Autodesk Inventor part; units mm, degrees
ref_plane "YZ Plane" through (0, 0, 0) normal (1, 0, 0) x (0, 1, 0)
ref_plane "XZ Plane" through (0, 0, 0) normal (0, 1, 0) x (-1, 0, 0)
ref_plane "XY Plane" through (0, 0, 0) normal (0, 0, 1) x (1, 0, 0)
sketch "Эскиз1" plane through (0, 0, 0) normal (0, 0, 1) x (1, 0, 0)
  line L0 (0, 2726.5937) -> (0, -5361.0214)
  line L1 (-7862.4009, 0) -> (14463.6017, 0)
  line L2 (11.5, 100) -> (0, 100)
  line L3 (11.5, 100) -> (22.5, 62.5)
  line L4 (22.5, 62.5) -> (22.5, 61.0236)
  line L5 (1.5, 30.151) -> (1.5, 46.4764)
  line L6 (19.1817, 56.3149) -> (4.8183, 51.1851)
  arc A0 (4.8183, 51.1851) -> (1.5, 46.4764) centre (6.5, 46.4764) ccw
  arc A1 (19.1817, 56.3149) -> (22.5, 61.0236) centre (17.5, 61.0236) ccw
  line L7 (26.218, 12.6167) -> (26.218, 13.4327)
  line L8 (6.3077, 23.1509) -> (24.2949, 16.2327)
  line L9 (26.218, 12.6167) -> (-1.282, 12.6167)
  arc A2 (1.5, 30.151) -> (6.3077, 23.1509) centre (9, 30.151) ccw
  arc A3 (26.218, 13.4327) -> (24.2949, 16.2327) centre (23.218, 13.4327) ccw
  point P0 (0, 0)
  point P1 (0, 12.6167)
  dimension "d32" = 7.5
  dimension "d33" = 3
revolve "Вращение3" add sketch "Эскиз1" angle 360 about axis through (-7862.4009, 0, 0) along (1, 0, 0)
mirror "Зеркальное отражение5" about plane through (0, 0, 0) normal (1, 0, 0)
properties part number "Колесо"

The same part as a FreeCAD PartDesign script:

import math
import FreeCAD as App
import Part
import Sketcher

V = App.Vector

doc = App.newDocument("Part")
body = doc.addObject("PartDesign::Body", "Body")

sketch1 = doc.addObject("Sketcher::SketchObject", "Sketch")
body.addObject(sketch1)
sketch1.AttachmentSupport = (doc.XY_Plane, [""])
sketch1.MapMode = "FlatFace"
sketch1.addGeometry([
    Part.LineSegment(V(11.5, 100, 0), V(0, 100, 0)),
    Part.LineSegment(V(0, 100, 0), V(0, 12.6167, 0)),
    Part.LineSegment(V(0, 12.6167, 0), V(26.218, 12.6167, 0)),
    Part.LineSegment(V(26.218, 12.6167, 0), V(26.218, 13.4327, 0)),
    Part.ArcOfCircle(Part.Circle(V(23.218, 13.4327, 0), V(0, 0, 1), 3), math.radians(0), math.radians(68.9629)),
    Part.LineSegment(V(24.2949, 16.2327, 0), V(6.3077, 23.1509, 0)),
    Part.ArcOfCircle(Part.Circle(V(9, 30.151, 0), V(0, 0, 1), 7.5), math.radians(180), math.radians(248.962818)),
    Part.LineSegment(V(1.5, 30.151, 0), V(1.5, 46.4764, 0)),
    Part.ArcOfCircle(Part.Circle(V(6.5, 46.4764, 0), V(0, 0, 1), 4.999997), math.radians(109.654055), math.radians(180)),
    Part.LineSegment(V(4.8183, 51.1851, 0), V(19.1817, 56.3149, 0)),
    Part.ArcOfCircle(Part.Circle(V(17.5, 61.0236, 0), V(0, 0, 1), 4.999997), math.radians(-70.345945), math.radians(0)),
    Part.LineSegment(V(22.5, 61.0236, 0), V(22.5, 62.5, 0)),
    Part.LineSegment(V(22.5, 62.5, 0), V(11.5, 100, 0)),
], False)
sketch1.addConstraint([
    Sketcher.Constraint("Coincident", 0, 2, 1, 1),
    Sketcher.Constraint("Coincident", 1, 2, 2, 1),
    Sketcher.Constraint("Coincident", 2, 2, 3, 1),
    Sketcher.Constraint("Tangent", 3, 2, 4, 1),
    Sketcher.Constraint("Tangent", 4, 2, 5, 1),
    Sketcher.Constraint("Tangent", 5, 2, 6, 2),
    Sketcher.Constraint("Tangent", 6, 1, 7, 1),
    Sketcher.Constraint("Tangent", 7, 2, 8, 2),
    Sketcher.Constraint("Tangent", 8, 1, 9, 1),
    Sketcher.Constraint("Tangent", 9, 2, 10, 1),
    Sketcher.Constraint("Tangent", 10, 2, 11, 1),
    Sketcher.Constraint("Coincident", 11, 2, 12, 1),
    Sketcher.Constraint("Coincident", 12, 2, 0, 1),
    Sketcher.Constraint("Horizontal", 0),
    Sketcher.Constraint("Vertical", 1),
    Sketcher.Constraint("Horizontal", 2),
    Sketcher.Constraint("Vertical", 3),
    Sketcher.Constraint("Vertical", 7),
    Sketcher.Constraint("Vertical", 11),
    Sketcher.Constraint("Equal", 8, 10),
    Sketcher.Constraint("PointOnObject", 0, 2, -2),
    Sketcher.Constraint("Radius", 4, 3.0),
    Sketcher.Constraint("Radius", 6, 7.5),
    Sketcher.Constraint("Radius", 8, 5.0),
    Sketcher.Constraint("DistanceX", 0, 2, 0, 1, 11.5),
    Sketcher.Constraint("DistanceX", -1, 1, 6, 3, 9.0),
    Sketcher.Constraint("DistanceY", -1, 1, 0, 2, 100.0),
    Sketcher.Constraint("DistanceX", 8, 3, 10, 3, 11.0),
    Sketcher.Constraint("DistanceY", 5, 2, 6, 3, 7.0),
    Sketcher.Constraint("DistanceY", -1, 1, 11, 2, 62.5),
    Sketcher.Constraint("DistanceX", 2, 1, 2, 2, 26.218),
    Sketcher.Constraint("DistanceY", 3, 1, 3, 2, 0.816),
    Sketcher.Constraint("Distance", 9, 15.252),
    Sketcher.Constraint("DistanceY", 1, 2, 1, 1, 87.3833),
    Sketcher.Constraint("DistanceY", 7, 1, 7, 2, 16.3254),
])
revolution = doc.addObject("PartDesign::Revolution", "Revolution")
body.addObject(revolution)
revolution.Profile = sketch1
revolution.ReferenceAxis = (sketch1, ["H_Axis"])
revolution.Angle = 360
doc.recompute()

mirrored = doc.addObject("PartDesign::Mirrored", "Mirrored")
body.addObject(mirrored)
mirrored.TransformMode = "Transform body"
mirrored.MirrorPlane = (doc.YZ_Plane, [""])
body.Tip = mirrored

doc.recompute()
